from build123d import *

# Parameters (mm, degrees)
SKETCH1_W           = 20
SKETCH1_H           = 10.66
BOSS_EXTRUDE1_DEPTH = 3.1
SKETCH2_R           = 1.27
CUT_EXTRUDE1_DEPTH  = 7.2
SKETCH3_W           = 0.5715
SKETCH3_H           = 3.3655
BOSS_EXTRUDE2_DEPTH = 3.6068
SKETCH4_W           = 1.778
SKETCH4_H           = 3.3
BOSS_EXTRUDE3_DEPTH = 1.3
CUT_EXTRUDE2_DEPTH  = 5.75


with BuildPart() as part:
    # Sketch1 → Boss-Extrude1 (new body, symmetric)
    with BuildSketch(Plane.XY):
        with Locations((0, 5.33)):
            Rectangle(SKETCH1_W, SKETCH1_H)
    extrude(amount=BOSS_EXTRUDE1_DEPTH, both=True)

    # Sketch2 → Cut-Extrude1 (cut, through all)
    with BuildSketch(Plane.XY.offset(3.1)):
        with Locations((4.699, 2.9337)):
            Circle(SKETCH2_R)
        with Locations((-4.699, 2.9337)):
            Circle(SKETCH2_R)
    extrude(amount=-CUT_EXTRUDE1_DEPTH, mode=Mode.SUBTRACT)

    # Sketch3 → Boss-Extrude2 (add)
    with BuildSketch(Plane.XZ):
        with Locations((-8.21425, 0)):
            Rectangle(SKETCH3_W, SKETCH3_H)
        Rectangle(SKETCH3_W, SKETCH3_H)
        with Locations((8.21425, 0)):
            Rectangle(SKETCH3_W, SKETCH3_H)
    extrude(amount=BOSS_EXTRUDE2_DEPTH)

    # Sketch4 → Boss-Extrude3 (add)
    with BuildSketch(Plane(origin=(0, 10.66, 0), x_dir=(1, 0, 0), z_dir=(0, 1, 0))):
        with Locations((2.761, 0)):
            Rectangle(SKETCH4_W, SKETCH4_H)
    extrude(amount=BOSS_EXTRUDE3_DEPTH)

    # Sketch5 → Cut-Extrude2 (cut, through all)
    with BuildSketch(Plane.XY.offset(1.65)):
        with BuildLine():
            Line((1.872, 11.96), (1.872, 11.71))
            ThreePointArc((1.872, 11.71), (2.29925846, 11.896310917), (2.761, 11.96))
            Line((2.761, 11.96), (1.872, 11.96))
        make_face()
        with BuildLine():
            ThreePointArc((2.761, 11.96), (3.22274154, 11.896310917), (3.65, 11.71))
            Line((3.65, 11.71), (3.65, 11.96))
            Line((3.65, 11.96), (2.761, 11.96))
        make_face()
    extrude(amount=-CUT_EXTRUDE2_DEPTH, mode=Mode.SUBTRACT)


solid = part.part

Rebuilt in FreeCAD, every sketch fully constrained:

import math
import FreeCAD as App
import Part
import Sketcher

V = App.Vector

doc = App.newDocument("Part")
body = doc.addObject("PartDesign::Body", "Body")

sketch1 = body.newObject("Sketcher::SketchObject", "Sketch")
sketch1.AttachmentSupport = (doc.getObject("XY_Plane"), [""])
sketch1.MapMode = "FlatFace"
sketch1.addGeometry([
    Part.LineSegment(V(-10, 10.66, 0), V(-10, 0, 0)),
    Part.LineSegment(V(-10, 0, 0), V(10, 0, 0)),
    Part.LineSegment(V(10, 0, 0), V(10, 10.66, 0)),
    Part.LineSegment(V(10, 10.66, 0), V(-10, 10.66, 0)),
], False)
sketch1.addConstraint([
    Sketcher.Constraint("Coincident", 0, 2, 1, 1),
    Sketcher.Constraint("Coincident", 1, 2, 2, 1),
    Sketcher.Constraint("Coincident", 2, 2, 3, 1),
    Sketcher.Constraint("Coincident", 3, 2, 0, 1),
    Sketcher.Constraint("Vertical", 0),
    Sketcher.Constraint("Horizontal", 1),
    Sketcher.Constraint("Vertical", 2),
    Sketcher.Constraint("Horizontal", 3),
    Sketcher.Constraint("Symmetric", 0, 2, 1, 2, -1, 1),
    Sketcher.Constraint("DistanceX", 1, 1, 1, 2, 20.0),
    Sketcher.Constraint("DistanceY", 0, 2, 0, 1, 10.66),
])
pad1 = body.newObject("PartDesign::Pad", "Pad")
pad1.Profile = sketch1
pad1.Length = 6.2
pad1.Midplane = True

sketch2 = body.newObject("Sketcher::SketchObject", "Sketch001")
sketch2.AttachmentSupport = (doc.getObject("XY_Plane"), [""])
sketch2.MapMode = "FlatFace"
sketch2.AttachmentOffset = App.Placement(V(0, 0, 3.1), App.Rotation())
sketch2.addGeometry([
    Part.Circle(V(4.699, 2.9337, 0), V(0, 0, 1), 1.27),
    Part.Circle(V(-4.699, 2.9337, 0), V(0, 0, 1), 1.27),
], False)
sketch2.addConstraint([
    Sketcher.Constraint("Equal", 0, 1),
    Sketcher.Constraint("Symmetric", 0, 3, 1, 3, -2),
    Sketcher.Constraint("Diameter", 0, 2.54),
    Sketcher.Constraint("DistanceX", -1, 1, 0, 3, 4.699),
    Sketcher.Constraint("DistanceY", -1, 1, 0, 3, 2.9337),
])
pocket1 = body.newObject("PartDesign::Pocket", "Pocket")
pocket1.Profile = sketch2
pocket1.Type = "ThroughAll"

sketch3 = body.newObject("Sketcher::SketchObject", "Sketch002")
sketch3.AttachmentSupport = (doc.getObject("XZ_Plane"), [""])
sketch3.MapMode = "FlatFace"
sketch3.addGeometry([
    Part.LineSegment(V(-8.5, 1.68275, 0), V(-8.5, -1.68275, 0)),
    Part.LineSegment(V(-8.5, -1.68275, 0), V(-7.9285, -1.68275, 0)),
    Part.LineSegment(V(-7.9285, -1.68275, 0), V(-7.9285, 1.68275, 0)),
    Part.LineSegment(V(-7.9285, 1.68275, 0), V(-8.5, 1.68275, 0)),
    Part.LineSegment(V(-0.28575, 1.68275, 0), V(-0.28575, -1.68275, 0)),
    Part.LineSegment(V(-0.28575, -1.68275, 0), V(0.28575, -1.68275, 0)),
    Part.LineSegment(V(0.28575, -1.68275, 0), V(0.28575, 1.68275, 0)),
    Part.LineSegment(V(0.28575, 1.68275, 0), V(-0.28575, 1.68275, 0)),
    Part.LineSegment(V(7.9285, 1.68275, 0), V(7.9285, -1.68275, 0)),
    Part.LineSegment(V(7.9285, -1.68275, 0), V(8.5, -1.68275, 0)),
    Part.LineSegment(V(8.5, -1.68275, 0), V(8.5, 1.68275, 0)),
    Part.LineSegment(V(8.5, 1.68275, 0), V(7.9285, 1.68275, 0)),
], False)
sketch3.addConstraint([
    Sketcher.Constraint("Coincident", 0, 2, 1, 1),
    Sketcher.Constraint("Coincident", 1, 2, 2, 1),
    Sketcher.Constraint("Coincident", 2, 2, 3, 1),
    Sketcher.Constraint("Coincident", 3, 2, 0, 1),
    Sketcher.Constraint("Coincident", 4, 2, 5, 1),
    Sketcher.Constraint("Coincident", 5, 2, 6, 1),
    Sketcher.Constraint("Coincident", 6, 2, 7, 1),
    Sketcher.Constraint("Coincident", 7, 2, 4, 1),
    Sketcher.Constraint("Coincident", 8, 2, 9, 1),
    Sketcher.Constraint("Coincident", 9, 2, 10, 1),
    Sketcher.Constraint("Coincident", 10, 2, 11, 1),
    Sketcher.Constraint("Coincident", 11, 2, 8, 1),
    Sketcher.Constraint("Vertical", 0),
    Sketcher.Constraint("Horizontal", 1),
    Sketcher.Constraint("Vertical", 2),
    Sketcher.Constraint("Horizontal", 3),
    Sketcher.Constraint("Vertical", 4),
    Sketcher.Constraint("Horizontal", 5),
    Sketcher.Constraint("Vertical", 6),
    Sketcher.Constraint("Horizontal", 7),
    Sketcher.Constraint("Vertical", 8),
    Sketcher.Constraint("Horizontal", 9),
    Sketcher.Constraint("Vertical", 10),
    Sketcher.Constraint("Horizontal", 11),
    Sketcher.Constraint("Symmetric", 4, 2, 6, 2, -1, 1),
    Sketcher.Constraint("Symmetric", 2, 2, 8, 2, -1, 1),
    Sketcher.Constraint("Symmetric", 0, 2, 10, 2, -1, 1),
    Sketcher.Constraint("Horizontal", 1, 2, 4, 2),
    Sketcher.Constraint("Horizontal", 3, 2, 6, 2),
    Sketcher.Constraint("Equal", 3, 5),
    Sketcher.Constraint("DistanceX", 0, 2, -1, 1, 8.5),
    Sketcher.Constraint("DistanceX", 1, 1, 1, 2, 0.5715),
    Sketcher.Constraint("DistanceY", 0, 2, 0, 1, 3.3655),
])
pad2 = body.newObject("PartDesign::Pad", "Pad001")
pad2.Profile = sketch3
pad2.Length = 3.6068

sketch4 = body.newObject("Sketcher::SketchObject", "Sketch003")
sketch4.AttachmentSupport = (doc.getObject("XZ_Plane"), [""])
sketch4.MapMode = "FlatFace"
sketch4.AttachmentOffset = App.Placement(V(0, 0, -10.66), App.Rotation())
sketch4.addGeometry([
    Part.LineSegment(V(1.872, -1.65, 0), V(1.872, 1.65, 0)),
    Part.LineSegment(V(1.872, 1.65, 0), V(3.65, 1.65, 0)),
    Part.LineSegment(V(3.65, 1.65, 0), V(3.65, -1.65, 0)),
    Part.LineSegment(V(3.65, -1.65, 0), V(1.872, -1.65, 0)),
], False)
sketch4.addConstraint([
    Sketcher.Constraint("Coincident", 0, 2, 1, 1),
    Sketcher.Constraint("Coincident", 1, 2, 2, 1),
    Sketcher.Constraint("Coincident", 2, 2, 3, 1),
    Sketcher.Constraint("Coincident", 3, 2, 0, 1),
    Sketcher.Constraint("Vertical", 0),
    Sketcher.Constraint("Horizontal", 1),
    Sketcher.Constraint("Vertical", 2),
    Sketcher.Constraint("Horizontal", 3),
    Sketcher.Constraint("DistanceY", 0, 1, 0, 2, 3.3),
    Sketcher.Constraint("DistanceX", 1, 1, 1, 2, 1.778),
    Sketcher.Constraint("DistanceY", -1, 1, 0, 2, 1.65),
    Sketcher.Constraint("DistanceX", -1, 1, 1, 2, 3.65),
])
pad3 = body.newObject("PartDesign::Pad", "Pad002")
pad3.Profile = sketch4
pad3.Length = 1.3
pad3.Reversed = True

sketch5 = body.newObject("Sketcher::SketchObject", "Sketch004")
sketch5.AttachmentSupport = (doc.getObject("XY_Plane"), [""])
sketch5.MapMode = "FlatFace"
sketch5.AttachmentOffset = App.Placement(V(0, 0, 1.65), App.Rotation())
sketch5.addGeometry([
    Part.LineSegment(V(1.872, 11.96, 0), V(1.872, 11.71, 0)),
    Part.ArcOfCircle(Part.Circle(V(2.761, 10.254358, 0), V(0, 0, 1), 1.705642), math.radians(90), math.radians(121.413543)),
    Part.LineSegment(V(2.761, 11.96, 0), V(1.872, 11.96, 0)),
    Part.ArcOfCircle(Part.Circle(V(2.761, 10.254358, 0), V(0, 0, 1), 1.705642), math.radians(58.586457), math.radians(90)),
    Part.LineSegment(V(3.65, 11.71, 0), V(3.65, 11.96, 0)),
    Part.LineSegment(V(3.65, 11.96, 0), V(2.761, 11.96, 0)),
], False)
sketch5.addConstraint([
    Sketcher.Constraint("Coincident", 0, 2, 1, 2),
    Sketcher.Constraint("Tangent", 1, 1, 2, 1),
    Sketcher.Constraint("Coincident", 2, 2, 0, 1),
    Sketcher.Constraint("Coincident", 3, 1, 4, 1),
    Sketcher.Constraint("Coincident", 4, 2, 5, 1),
    Sketcher.Constraint("Tangent", 5, 2, 3, 2),
    Sketcher.Constraint("Vertical", 0),
    Sketcher.Constraint("Horizontal", 2),
    Sketcher.Constraint("Vertical", 4),
    Sketcher.Constraint("Horizontal", 5),
    Sketcher.Constraint("Coincident", 3, 3, 1, 3),
    Sketcher.Constraint("Equal", 1, 3),
    Sketcher.Constraint("Horizontal", 0, 2, 3, 1),
    Sketcher.Constraint("DistanceY", 0, 2, 0, 1, 0.25),
    Sketcher.Constraint("DistanceX", 2, 2, 2, 1, 0.889),
    Sketcher.Constraint("DistanceY", -1, 1, 0, 2, 11.71),
    Sketcher.Constraint("DistanceX", -1, 1, 3, 1, 3.65),
])
pocket2 = body.newObject("PartDesign::Pocket", "Pocket001")
pocket2.Profile = sketch5
pocket2.Type = "ThroughAll"

doc.recompute()
